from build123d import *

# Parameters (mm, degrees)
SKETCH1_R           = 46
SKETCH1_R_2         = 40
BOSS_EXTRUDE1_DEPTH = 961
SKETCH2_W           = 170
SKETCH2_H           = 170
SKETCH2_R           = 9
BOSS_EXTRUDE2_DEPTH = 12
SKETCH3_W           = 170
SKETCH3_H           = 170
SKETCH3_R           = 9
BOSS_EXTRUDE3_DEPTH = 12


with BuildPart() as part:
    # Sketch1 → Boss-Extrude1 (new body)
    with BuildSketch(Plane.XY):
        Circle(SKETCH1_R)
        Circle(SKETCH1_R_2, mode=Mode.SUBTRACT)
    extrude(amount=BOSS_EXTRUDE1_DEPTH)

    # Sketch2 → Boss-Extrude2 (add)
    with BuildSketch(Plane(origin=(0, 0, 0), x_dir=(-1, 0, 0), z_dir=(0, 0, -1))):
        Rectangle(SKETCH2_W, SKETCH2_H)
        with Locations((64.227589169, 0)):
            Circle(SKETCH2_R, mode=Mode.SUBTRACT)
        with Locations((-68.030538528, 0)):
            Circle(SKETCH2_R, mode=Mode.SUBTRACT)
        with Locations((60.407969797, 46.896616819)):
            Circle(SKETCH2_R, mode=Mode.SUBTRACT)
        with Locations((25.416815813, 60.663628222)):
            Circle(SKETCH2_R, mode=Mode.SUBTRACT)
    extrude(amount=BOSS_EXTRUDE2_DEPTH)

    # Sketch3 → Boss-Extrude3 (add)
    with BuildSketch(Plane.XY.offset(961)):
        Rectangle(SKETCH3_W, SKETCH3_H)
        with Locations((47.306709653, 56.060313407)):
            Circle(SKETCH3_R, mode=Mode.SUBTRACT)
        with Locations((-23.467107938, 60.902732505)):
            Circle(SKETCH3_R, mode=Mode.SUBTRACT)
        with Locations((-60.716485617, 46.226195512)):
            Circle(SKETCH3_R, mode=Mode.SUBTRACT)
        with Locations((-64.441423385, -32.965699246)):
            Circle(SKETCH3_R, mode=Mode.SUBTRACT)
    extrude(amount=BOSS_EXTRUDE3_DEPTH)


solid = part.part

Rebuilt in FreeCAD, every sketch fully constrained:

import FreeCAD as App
import Part
import Sketcher
from FreeCAD import Vector


def add_polygon(sketch, points):
    """Adds a closed chain of lines whose ends are joined by coincident constraints."""
    first, n = sketch.GeometryCount, len(points)
    for a, b in zip(points, points[1:] + points[:1]):
        sketch.addGeometry(Part.LineSegment(App.Vector(*a, 0), App.Vector(*b, 0)), False)
    for i in range(n):
        sketch.addConstraint(Sketcher.Constraint("Coincident", first + i, 2, first + (i + 1) % n, 1))

doc = App.newDocument("Part")
body = doc.addObject("PartDesign::Body", "Body")

# Sketch on XY plane
sketch1 = body.newObject("Sketcher::SketchObject", "Sketch")
sketch1.AttachmentSupport = (doc.getObject("XY_Plane"), [""])
sketch1.MapMode = "FlatFace"
sketch1.addGeometry(Part.Circle(Vector(0, 0, 0), Vector(0, 0, 1), 46), False)
sketch1.addGeometry(Part.Circle(Vector(0, 0, 0), Vector(0, 0, 1), 40), False)
sketch1.addConstraint(Sketcher.Constraint("Coincident", 0, 3, -1, 1))
sketch1.addConstraint(Sketcher.Constraint("Coincident", 1, 3, -1, 1))
sketch1.addConstraint(Sketcher.Constraint("Diameter", 0, 92.0))
sketch1.addConstraint(Sketcher.Constraint("Diameter", 1, 80.0))
pad1 = body.newObject("PartDesign::Pad", "Pad")
pad1.Profile = sketch1
pad1.Length = 961

# Sketch on XY plane
sketch2 = body.newObject("Sketcher::SketchObject", "Sketch001")
sketch2.AttachmentSupport = (doc.getObject("XY_Plane"), [""])
sketch2.MapMode = "FlatFace"
add_polygon(sketch2, [(85, 85), (85, -85), (-85, -85), (-85, 85)])  # lines 0-3
sketch2.addGeometry(Part.Circle(Vector(68.030539, 0, 0), Vector(0, 0, 1), 9), False)  # 4
sketch2.addGeometry(Part.Circle(Vector(-64.227589, 0, 0), Vector(0, 0, 1), 9), False)  # 5
sketch2.addGeometry(Part.Circle(Vector(-60.40797, 46.896617, 0), Vector(0, 0, 1), 9), False)  # 6
sketch2.addGeometry(Part.Circle(Vector(-25.416816, 60.663628, 0), Vector(0, 0, 1), 9), False)  # 7
sketch2.addConstraint(Sketcher.Constraint("Vertical", 0))
sketch2.addConstraint(Sketcher.Constraint("Horizontal", 1))
sketch2.addConstraint(Sketcher.Constraint("Vertical", 2))
sketch2.addConstraint(Sketcher.Constraint("Horizontal", 3))
sketch2.addConstraint(Sketcher.Constraint("Equal", 4, 5))
sketch2.addConstraint(Sketcher.Constraint("Equal", 5, 6))
sketch2.addConstraint(Sketcher.Constraint("Equal", 6, 7))
sketch2.addConstraint(Sketcher.Constraint("Symmetric", 0, 2, 2, 2, -1, 1))
sketch2.addConstraint(Sketcher.Constraint("PointOnObject", 4, 3, -1))
sketch2.addConstraint(Sketcher.Constraint("PointOnObject", 5, 3, -1))
sketch2.addConstraint(Sketcher.Constraint("Equal", 3, 0))
sketch2.addConstraint(Sketcher.Constraint("Diameter", 4, 18.0))
sketch2.addConstraint(Sketcher.Constraint("DistanceX", 1, 2, 1, 1, 170.0))
sketch2.addConstraint(Sketcher.Constraint("DistanceX", -1, 1, 4, 3, 68.030539))
sketch2.addConstraint(Sketcher.Constraint("DistanceX", 5, 3, -1, 1, 64.227589))
sketch2.addConstraint(Sketcher.Constraint("DistanceX", 6, 3, -1, 1, 60.40797))
sketch2.addConstraint(Sketcher.Constraint("DistanceY", -1, 1, 7, 3, 60.663628))
sketch2.addConstraint(Sketcher.Constraint("DistanceY", 6, 3, 7, 3, 13.767011))
sketch2.addConstraint(Sketcher.Constraint("DistanceX", 7, 3, -1, 1, 25.416816))
pad2 = body.newObject("PartDesign::Pad", "Pad001")
pad2.Profile = sketch2
pad2.Length = 12
pad2.Reversed = True

# Sketch on XY plane
sketch3 = body.newObject("Sketcher::SketchObject", "Sketch002")
sketch3.AttachmentSupport = (doc.getObject("XY_Plane"), [""])
sketch3.MapMode = "FlatFace"
sketch3.AttachmentOffset = App.Placement(Vector(0, 0, 961), App.Rotation())
add_polygon(sketch3, [(-85, 85), (-85, -85), (85, -85), (85, 85)])  # lines 0-3
sketch3.addGeometry(Part.Circle(Vector(-64.441423, -32.965699, 0), Vector(0, 0, 1), 9), False)  # 4
sketch3.addGeometry(Part.Circle(Vector(-60.716486, 46.226196, 0), Vector(0, 0, 1), 9), False)  # 5
sketch3.addGeometry(Part.Circle(Vector(-23.467108, 60.902733, 0), Vector(0, 0, 1), 9), False)  # 6
sketch3.addGeometry(Part.Circle(Vector(47.30671, 56.060313, 0), Vector(0, 0, 1), 9), False)  # 7
sketch3.addConstraint(Sketcher.Constraint("Vertical", 0))
sketch3.addConstraint(Sketcher.Constraint("Horizontal", 1))
sketch3.addConstraint(Sketcher.Constraint("Vertical", 2))
sketch3.addConstraint(Sketcher.Constraint("Horizontal", 3))
sketch3.addConstraint(Sketcher.Constraint("Equal", 4, 5))
sketch3.addConstraint(Sketcher.Constraint("Equal", 5, 6))
sketch3.addConstraint(Sketcher.Constraint("Equal", 6, 7))
sketch3.addConstraint(Sketcher.Constraint("Symmetric", 0, 2, 2, 2, -1, 1))
sketch3.addConstraint(Sketcher.Constraint("Equal", 3, 0))
sketch3.addConstraint(Sketcher.Constraint("Diameter", 4, 18.0))
sketch3.addConstraint(Sketcher.Constraint("DistanceX", 1, 1, 1, 2, 170.0))
sketch3.addConstraint(Sketcher.Constraint("DistanceY", 4, 3, -1, 1, 32.965699))
sketch3.addConstraint(Sketcher.Constraint("DistanceX", -1, 1, 7, 3, 47.30671))
sketch3.addConstraint(Sketcher.Constraint("DistanceY", 4, 3, 6, 3, 93.868432))
sketch3.addConstraint(Sketcher.Constraint("DistanceY", 7, 3, 6, 3, 4.842419))
sketch3.addConstraint(Sketcher.Constraint("DistanceX", 4, 3, -1, 1, 64.441423))
sketch3.addConstraint(Sketcher.Constraint("DistanceX", 5, 3, -1, 1, 60.716486))
sketch3.addConstraint(Sketcher.Constraint("DistanceY", -1, 1, 5, 3, 46.226196))
sketch3.addConstraint(Sketcher.Constraint("DistanceX", 6, 3, -1, 1, 23.467108))
pad3 = body.newObject("PartDesign::Pad", "Pad002")
pad3.Profile = sketch3
pad3.Length = 12

doc.recompute()
